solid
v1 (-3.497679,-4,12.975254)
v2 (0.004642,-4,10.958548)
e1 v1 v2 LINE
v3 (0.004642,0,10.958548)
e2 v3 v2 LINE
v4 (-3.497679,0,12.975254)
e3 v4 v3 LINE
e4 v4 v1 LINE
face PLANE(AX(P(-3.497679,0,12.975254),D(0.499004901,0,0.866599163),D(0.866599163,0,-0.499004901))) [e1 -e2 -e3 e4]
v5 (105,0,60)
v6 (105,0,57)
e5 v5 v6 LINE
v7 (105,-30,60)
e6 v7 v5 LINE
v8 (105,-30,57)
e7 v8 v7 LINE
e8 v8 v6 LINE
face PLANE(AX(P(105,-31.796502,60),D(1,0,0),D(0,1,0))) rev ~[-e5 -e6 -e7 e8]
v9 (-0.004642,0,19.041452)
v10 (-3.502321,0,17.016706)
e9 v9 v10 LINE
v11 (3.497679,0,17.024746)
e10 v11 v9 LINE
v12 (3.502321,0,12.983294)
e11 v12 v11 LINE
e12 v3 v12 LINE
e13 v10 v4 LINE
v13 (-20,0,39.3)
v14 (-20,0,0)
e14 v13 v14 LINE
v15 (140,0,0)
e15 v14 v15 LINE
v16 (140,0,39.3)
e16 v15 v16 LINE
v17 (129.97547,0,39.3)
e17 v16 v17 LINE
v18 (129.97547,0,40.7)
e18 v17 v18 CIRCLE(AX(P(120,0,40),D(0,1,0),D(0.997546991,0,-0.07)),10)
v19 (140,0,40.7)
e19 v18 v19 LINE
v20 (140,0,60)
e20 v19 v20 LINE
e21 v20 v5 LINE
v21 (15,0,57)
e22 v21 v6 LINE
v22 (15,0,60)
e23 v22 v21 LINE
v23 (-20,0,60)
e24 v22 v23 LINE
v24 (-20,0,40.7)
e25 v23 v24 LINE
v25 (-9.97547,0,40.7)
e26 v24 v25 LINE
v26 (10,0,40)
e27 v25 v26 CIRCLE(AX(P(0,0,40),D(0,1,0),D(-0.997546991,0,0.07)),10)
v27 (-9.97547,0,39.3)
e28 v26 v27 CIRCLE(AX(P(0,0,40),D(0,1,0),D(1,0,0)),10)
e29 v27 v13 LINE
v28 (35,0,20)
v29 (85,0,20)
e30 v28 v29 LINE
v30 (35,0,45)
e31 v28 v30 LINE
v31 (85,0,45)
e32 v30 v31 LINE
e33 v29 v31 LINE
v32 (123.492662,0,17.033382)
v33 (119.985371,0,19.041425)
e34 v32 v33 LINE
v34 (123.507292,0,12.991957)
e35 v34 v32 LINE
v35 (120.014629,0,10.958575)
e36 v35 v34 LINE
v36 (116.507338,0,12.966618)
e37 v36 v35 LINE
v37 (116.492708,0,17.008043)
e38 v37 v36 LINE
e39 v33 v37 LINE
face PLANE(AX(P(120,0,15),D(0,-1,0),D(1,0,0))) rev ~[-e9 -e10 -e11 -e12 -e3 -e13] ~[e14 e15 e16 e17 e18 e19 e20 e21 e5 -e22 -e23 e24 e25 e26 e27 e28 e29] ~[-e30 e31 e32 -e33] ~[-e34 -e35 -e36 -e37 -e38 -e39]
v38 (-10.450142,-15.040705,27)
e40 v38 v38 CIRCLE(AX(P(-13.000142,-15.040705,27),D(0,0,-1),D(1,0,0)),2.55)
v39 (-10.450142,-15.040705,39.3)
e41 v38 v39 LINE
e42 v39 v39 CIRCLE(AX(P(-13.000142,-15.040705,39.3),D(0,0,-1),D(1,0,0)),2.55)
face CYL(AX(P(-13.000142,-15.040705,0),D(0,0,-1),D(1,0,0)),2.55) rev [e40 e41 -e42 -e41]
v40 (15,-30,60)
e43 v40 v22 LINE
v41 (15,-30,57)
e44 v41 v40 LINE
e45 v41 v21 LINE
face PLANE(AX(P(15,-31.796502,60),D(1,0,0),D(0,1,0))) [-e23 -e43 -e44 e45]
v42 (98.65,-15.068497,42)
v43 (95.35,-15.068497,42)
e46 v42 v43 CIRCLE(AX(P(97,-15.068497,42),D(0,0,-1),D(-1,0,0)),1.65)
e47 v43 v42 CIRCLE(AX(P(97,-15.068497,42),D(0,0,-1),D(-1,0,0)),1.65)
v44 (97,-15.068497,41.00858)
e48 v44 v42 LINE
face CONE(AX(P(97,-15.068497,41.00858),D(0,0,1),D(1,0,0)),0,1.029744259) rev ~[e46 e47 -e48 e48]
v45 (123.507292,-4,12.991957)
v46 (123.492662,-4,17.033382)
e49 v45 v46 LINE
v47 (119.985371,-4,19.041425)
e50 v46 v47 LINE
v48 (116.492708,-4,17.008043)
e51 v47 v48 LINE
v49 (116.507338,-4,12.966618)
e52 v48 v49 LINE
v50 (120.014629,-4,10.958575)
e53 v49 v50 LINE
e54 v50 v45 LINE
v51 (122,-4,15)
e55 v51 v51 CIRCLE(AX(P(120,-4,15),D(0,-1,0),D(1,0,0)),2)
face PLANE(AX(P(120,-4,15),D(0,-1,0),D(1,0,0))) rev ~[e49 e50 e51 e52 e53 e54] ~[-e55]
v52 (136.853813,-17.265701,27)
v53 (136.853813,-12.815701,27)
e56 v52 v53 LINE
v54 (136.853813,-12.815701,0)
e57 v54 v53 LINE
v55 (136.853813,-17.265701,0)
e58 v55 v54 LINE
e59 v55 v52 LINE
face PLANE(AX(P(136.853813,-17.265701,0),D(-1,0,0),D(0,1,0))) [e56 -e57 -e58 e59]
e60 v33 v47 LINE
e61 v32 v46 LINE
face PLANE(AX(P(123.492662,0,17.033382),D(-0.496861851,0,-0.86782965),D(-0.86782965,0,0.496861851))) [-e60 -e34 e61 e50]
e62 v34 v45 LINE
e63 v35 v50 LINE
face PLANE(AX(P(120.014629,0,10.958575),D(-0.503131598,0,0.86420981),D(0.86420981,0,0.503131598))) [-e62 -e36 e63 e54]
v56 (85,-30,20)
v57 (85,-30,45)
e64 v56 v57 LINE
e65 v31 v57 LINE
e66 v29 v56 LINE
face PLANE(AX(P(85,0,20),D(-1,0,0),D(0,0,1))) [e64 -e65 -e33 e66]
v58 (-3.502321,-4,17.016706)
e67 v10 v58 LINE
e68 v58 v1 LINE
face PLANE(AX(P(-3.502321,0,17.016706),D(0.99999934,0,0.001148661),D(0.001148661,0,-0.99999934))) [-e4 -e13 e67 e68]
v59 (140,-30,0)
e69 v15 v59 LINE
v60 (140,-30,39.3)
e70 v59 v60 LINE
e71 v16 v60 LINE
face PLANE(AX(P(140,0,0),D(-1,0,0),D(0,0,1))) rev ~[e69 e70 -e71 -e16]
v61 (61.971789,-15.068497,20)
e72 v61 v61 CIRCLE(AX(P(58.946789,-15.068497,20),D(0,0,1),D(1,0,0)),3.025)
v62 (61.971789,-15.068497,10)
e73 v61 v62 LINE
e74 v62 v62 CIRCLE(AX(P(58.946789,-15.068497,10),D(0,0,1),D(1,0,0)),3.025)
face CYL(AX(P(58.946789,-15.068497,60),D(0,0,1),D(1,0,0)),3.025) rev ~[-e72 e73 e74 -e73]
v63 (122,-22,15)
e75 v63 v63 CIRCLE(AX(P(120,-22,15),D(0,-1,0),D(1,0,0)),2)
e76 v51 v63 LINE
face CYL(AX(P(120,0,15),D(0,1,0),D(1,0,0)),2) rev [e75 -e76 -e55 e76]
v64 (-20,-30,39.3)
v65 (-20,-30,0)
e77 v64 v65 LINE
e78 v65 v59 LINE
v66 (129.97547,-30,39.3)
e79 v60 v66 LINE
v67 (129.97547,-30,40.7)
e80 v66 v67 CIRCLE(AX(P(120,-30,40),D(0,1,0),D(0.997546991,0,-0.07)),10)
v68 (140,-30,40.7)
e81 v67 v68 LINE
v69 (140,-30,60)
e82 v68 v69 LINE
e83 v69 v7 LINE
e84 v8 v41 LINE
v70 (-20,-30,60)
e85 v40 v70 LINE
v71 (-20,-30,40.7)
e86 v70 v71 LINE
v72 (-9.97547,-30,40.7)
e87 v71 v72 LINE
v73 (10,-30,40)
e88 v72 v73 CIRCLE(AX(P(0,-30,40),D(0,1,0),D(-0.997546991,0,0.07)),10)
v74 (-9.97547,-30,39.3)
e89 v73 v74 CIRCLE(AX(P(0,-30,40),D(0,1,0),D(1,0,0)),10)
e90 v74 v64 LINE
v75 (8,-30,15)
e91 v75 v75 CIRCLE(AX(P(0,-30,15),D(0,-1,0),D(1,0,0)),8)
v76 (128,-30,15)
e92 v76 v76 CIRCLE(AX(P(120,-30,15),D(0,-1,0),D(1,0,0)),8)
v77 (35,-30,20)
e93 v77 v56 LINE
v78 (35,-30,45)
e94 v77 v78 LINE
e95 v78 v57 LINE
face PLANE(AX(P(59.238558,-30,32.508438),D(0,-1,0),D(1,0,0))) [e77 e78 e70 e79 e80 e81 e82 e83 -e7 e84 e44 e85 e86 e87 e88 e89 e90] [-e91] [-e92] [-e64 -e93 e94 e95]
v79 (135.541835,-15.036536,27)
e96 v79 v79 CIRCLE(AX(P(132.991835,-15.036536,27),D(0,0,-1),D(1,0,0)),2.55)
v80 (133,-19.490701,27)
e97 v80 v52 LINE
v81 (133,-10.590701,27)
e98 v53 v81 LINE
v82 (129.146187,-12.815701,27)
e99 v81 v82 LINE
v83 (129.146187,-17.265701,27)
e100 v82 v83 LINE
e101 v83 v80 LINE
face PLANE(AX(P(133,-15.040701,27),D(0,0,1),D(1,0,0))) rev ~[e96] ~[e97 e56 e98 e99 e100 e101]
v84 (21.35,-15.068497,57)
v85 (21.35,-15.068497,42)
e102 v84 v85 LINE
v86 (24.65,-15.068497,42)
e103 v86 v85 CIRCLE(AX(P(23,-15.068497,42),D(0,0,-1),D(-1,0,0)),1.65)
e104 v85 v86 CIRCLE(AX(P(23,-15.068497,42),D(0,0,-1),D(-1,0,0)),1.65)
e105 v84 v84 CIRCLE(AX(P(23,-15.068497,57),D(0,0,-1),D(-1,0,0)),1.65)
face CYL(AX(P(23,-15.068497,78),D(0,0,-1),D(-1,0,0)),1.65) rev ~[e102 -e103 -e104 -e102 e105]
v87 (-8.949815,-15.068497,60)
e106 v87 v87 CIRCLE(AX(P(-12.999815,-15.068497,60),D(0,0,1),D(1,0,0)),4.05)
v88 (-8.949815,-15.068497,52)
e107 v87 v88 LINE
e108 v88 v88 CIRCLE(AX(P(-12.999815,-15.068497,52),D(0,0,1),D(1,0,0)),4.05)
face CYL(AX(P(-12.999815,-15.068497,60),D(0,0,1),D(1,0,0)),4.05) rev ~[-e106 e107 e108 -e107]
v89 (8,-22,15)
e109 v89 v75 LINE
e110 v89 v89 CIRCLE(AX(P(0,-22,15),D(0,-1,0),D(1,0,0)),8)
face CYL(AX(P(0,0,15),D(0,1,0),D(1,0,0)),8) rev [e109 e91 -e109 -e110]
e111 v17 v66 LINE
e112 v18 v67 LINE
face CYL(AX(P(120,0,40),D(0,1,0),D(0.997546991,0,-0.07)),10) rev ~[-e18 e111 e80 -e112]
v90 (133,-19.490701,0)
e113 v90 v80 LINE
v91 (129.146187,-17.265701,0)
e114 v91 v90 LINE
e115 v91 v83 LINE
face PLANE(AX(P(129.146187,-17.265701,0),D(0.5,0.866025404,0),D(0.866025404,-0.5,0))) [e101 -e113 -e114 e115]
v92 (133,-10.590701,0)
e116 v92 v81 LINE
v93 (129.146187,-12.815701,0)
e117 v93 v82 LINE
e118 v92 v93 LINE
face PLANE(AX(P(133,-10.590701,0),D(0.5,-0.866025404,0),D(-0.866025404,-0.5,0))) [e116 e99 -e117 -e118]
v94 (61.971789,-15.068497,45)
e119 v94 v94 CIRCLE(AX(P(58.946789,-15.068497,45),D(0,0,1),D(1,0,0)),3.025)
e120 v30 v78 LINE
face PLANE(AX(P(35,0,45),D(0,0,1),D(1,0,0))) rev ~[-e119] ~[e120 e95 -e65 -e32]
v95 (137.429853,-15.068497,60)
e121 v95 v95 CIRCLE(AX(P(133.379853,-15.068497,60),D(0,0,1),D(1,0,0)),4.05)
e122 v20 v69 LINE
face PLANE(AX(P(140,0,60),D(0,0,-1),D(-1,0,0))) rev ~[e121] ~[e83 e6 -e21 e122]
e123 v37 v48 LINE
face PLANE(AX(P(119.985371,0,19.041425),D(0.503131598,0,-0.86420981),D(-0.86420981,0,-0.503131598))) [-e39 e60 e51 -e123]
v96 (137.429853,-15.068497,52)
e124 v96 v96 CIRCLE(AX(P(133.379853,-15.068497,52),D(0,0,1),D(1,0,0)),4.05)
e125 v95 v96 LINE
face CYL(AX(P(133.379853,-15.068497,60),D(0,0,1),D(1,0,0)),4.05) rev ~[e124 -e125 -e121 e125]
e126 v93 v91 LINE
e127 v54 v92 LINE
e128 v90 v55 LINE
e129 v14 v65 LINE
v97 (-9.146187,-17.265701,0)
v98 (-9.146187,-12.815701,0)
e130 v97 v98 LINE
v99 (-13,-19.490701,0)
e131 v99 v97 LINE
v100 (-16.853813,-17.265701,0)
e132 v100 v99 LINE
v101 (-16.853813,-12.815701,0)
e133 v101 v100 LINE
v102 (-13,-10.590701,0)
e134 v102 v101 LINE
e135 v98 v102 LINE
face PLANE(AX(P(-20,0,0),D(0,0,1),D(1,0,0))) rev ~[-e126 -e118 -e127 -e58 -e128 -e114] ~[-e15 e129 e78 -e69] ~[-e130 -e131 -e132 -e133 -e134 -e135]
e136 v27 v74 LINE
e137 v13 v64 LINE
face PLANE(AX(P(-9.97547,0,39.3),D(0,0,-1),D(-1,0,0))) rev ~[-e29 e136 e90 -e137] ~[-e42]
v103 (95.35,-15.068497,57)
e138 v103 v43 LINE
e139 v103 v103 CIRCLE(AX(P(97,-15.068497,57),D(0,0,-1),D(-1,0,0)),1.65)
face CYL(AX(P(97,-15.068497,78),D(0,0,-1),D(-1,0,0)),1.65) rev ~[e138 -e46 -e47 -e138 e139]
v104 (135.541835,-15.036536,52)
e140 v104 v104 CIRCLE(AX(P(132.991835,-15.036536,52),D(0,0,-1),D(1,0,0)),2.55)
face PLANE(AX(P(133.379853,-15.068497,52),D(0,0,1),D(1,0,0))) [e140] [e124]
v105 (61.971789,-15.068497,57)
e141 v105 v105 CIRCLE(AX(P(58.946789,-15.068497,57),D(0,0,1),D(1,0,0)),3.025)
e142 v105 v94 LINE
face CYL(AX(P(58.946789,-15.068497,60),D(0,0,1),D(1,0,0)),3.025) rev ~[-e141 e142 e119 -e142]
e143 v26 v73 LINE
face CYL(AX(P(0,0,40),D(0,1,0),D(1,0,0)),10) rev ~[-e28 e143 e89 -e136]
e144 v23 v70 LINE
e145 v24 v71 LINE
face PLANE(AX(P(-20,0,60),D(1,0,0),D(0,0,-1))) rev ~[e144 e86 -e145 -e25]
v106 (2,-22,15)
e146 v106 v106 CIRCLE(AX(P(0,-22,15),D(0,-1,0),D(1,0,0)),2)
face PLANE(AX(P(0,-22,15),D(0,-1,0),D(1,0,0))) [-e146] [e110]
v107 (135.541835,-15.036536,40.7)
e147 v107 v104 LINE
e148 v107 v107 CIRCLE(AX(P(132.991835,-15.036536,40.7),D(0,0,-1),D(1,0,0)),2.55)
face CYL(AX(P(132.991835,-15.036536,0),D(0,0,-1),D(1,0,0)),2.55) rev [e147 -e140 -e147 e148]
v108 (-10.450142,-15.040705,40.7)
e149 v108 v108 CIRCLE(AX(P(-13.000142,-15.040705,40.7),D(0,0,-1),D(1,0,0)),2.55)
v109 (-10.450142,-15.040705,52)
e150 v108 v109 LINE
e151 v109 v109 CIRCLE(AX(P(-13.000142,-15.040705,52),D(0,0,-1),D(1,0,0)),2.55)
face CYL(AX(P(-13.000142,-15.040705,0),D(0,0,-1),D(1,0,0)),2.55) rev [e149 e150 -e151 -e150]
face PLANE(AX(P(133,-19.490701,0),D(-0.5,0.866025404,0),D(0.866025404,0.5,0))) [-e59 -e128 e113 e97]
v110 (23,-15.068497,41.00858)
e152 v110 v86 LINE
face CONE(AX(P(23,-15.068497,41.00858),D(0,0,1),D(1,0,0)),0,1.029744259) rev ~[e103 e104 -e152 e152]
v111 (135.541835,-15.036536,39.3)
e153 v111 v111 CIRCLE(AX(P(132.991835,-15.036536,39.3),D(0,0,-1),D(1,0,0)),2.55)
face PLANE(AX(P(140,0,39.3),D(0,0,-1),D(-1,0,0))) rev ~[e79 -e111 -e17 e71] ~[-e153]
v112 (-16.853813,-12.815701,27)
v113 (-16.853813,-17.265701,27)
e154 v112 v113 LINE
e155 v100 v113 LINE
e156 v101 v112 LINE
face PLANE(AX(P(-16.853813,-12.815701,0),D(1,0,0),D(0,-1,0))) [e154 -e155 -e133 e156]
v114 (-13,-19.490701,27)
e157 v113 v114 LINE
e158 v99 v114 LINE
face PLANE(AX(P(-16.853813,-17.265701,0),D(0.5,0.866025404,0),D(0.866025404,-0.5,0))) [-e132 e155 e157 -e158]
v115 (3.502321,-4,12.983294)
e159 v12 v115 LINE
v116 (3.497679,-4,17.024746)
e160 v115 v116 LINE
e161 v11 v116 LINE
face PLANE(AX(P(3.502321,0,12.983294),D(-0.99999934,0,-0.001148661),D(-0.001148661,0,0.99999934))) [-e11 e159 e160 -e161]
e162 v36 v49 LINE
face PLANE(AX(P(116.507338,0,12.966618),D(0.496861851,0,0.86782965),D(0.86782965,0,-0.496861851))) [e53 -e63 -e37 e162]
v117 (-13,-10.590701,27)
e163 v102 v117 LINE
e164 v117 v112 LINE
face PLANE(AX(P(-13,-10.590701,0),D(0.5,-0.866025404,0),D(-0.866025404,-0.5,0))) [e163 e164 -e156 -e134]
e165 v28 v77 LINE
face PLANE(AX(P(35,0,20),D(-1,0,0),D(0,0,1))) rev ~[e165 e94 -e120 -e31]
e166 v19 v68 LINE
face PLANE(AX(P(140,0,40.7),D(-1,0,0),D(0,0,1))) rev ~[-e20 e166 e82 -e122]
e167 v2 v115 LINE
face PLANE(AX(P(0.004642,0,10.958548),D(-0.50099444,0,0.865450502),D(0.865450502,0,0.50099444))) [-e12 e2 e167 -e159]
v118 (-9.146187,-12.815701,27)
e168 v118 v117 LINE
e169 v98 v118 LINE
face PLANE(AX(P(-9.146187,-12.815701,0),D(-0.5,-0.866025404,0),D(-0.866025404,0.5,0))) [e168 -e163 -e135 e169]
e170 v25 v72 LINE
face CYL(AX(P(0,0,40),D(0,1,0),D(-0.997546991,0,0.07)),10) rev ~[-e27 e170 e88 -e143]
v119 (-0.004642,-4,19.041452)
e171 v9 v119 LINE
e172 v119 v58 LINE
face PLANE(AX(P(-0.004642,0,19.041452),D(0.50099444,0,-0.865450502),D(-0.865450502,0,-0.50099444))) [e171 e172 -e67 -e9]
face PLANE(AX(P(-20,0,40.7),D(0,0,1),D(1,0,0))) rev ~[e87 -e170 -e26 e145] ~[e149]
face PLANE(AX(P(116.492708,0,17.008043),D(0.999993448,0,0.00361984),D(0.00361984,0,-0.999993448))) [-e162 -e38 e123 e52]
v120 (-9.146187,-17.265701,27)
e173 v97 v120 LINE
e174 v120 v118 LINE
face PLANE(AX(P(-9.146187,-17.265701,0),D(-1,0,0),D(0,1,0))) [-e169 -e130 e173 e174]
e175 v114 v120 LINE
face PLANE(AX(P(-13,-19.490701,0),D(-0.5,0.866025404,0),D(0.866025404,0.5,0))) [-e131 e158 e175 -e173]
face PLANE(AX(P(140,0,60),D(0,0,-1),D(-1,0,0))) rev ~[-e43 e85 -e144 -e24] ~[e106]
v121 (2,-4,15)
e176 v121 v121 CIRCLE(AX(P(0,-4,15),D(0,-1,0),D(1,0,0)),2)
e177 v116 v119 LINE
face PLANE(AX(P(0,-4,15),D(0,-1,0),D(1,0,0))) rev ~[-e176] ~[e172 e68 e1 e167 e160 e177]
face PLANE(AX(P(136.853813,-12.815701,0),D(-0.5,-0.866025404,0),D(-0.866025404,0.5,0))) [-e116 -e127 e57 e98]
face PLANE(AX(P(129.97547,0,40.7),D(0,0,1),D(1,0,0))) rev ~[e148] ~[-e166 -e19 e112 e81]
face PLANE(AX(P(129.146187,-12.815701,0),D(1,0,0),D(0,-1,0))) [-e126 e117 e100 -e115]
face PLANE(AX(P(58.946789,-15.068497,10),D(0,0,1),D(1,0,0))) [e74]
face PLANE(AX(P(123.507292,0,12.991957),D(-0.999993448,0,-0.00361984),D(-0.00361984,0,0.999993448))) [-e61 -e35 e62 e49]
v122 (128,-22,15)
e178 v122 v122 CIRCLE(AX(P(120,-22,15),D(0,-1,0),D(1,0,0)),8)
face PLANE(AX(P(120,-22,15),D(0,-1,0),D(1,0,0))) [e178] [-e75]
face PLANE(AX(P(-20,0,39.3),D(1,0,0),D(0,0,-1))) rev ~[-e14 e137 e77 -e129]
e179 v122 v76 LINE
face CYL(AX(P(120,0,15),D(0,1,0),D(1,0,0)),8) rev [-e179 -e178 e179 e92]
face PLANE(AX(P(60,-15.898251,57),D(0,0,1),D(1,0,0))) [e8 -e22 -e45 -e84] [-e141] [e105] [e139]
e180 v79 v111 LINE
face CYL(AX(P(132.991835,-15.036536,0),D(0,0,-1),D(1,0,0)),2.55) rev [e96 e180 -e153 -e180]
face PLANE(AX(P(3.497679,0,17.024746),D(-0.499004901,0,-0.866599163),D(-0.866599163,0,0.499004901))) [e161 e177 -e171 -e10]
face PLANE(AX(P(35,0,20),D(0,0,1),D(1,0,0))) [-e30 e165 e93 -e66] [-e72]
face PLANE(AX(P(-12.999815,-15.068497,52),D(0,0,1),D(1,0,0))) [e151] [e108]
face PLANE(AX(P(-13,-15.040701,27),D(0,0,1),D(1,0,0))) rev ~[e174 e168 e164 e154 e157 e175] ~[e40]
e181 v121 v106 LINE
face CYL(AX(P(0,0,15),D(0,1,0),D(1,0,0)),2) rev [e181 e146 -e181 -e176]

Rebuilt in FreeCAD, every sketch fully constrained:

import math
import FreeCAD as App
import Part
import Sketcher
from FreeCAD import Vector
Q = App.Units.Quantity

doc = App.newDocument("Part")
params = doc.addObject("Spreadsheet::Sheet", "Params")
for row, (alias, value) in enumerate([
    ("sketch1_diameter", "16 mm"),
    ("sketch1_radius", "10 mm"),
    ("sketch1_width", "160 mm"),
    ("sketch1_width2", "50 mm"),
    ("sketch1_height", "25 mm"),
    ("pad1_length", "30 mm"),
    ("sketch2_height", "4.45 mm"),
    ("pocket1_length", "27 mm"),
    ("sketch3_diameter", "5.1 mm"),
    ("sketch4_diameter", "8.1 mm"),
    ("sketch4_diameter2", "5.1 mm"),
    ("pocket3_length", "10 mm"),
    ("sketch5_diameter", "8.1 mm"),
    ("pocket4_length", "8 mm"),
    ("sketch6_diameter", "6.05 mm"),
    ("pocket5_length", "50 mm"),
    ("sketch7_diameter", "6.05 mm"),
    ("sketch7_width", "90 mm"),
    ("pocket6_length", "3 mm"),
    ("sketch8_diameter", "3.3 mm"),
    ("hole_diameter", "3.3 mm"),
    ("hole_depth", "18 mm"),
    ("sketch9_diameter", "4 mm"),
    ("pocket7_length", "4 mm"),
    ("sketch10_diameter", "16 mm"),
    ("pad2_length", "22 mm"),
    ("sketch11_diameter", "4 mm"),
    ("pad3_length", "22 mm"),
    ("sketch12_diameter", "4 mm"),
    ("pocket8_length", "4 mm"),
], start=1):
    params.set(f"A{row}", alias)
    params.set(f"B{row}", "=" + value)
    params.setAlias(f"B{row}", alias)

body = doc.addObject("PartDesign::Body", "Body")

sketch1 = doc.addObject("Sketcher::SketchObject", "Sketch")
body.addObject(sketch1)
sketch1.AttachmentSupport = (doc.XZ_Plane, [""])
sketch1.MapMode = "FlatFace"
sketch1.addGeometry([
    Part.LineSegment(Vector(-20, 39.3, 0), Vector(-20, 0, 0)),
    Part.LineSegment(Vector(-20, 0, 0), Vector(140, 0, 0)),
    Part.LineSegment(Vector(140, 0, 0), Vector(140, 39.3, 0)),
    Part.LineSegment(Vector(140, 39.3, 0), Vector(130, 39.3, 0)),
    Part.ArcOfCircle(Part.Circle(Vector(120, 40, 0), Vector(0, 0, 1), 10), math.radians(4), math.radians(356)),
    Part.LineSegment(Vector(130, 40.7, 0), Vector(140, 40.7, 0)),
    Part.LineSegment(Vector(140, 40.7, 0), Vector(140, 60, 0)),
    Part.LineSegment(Vector(140, 60, 0), Vector(-20, 60, 0)),
    Part.LineSegment(Vector(-20, 60, 0), Vector(-20, 40.7, 0)),
    Part.LineSegment(Vector(-20, 40.7, 0), Vector(-10, 40.7, 0)),
    Part.ArcOfCircle(Part.Circle(Vector(0, 40, 0), Vector(0, 0, 1), 10), math.radians(0), math.radians(176)),
    Part.ArcOfCircle(Part.Circle(Vector(0, 40, 0), Vector(0, 0, 1), 10), math.radians(-176), math.radians(0)),
    Part.LineSegment(Vector(-10, 39.3, 0), Vector(-20, 39.3, 0)),
    Part.Circle(Vector(0, 15, 0), Vector(0, 0, 1), 8),
    Part.Circle(Vector(120, 15, 0), Vector(0, 0, 1), 8),
    Part.LineSegment(Vector(85, 20, 0), Vector(35, 20, 0)),
    Part.LineSegment(Vector(35, 20, 0), Vector(35, 45, 0)),
    Part.LineSegment(Vector(35, 45, 0), Vector(85, 45, 0)),
    Part.LineSegment(Vector(85, 45, 0), Vector(85, 20, 0)),
], False)
sketch1.addConstraint([
    Sketcher.Constraint("Coincident", 0, 2, 1, 1),
    Sketcher.Constraint("Coincident", 1, 2, 2, 1),
    Sketcher.Constraint("Coincident", 2, 2, 3, 1),
    Sketcher.Constraint("Coincident", 3, 2, 4, 2),
    Sketcher.Constraint("Coincident", 4, 1, 5, 1),
    Sketcher.Constraint("Coincident", 5, 2, 6, 1),
    Sketcher.Constraint("Coincident", 6, 2, 7, 1),
    Sketcher.Constraint("Coincident", 7, 2, 8, 1),
    Sketcher.Constraint("Coincident", 8, 2, 9, 1),
    Sketcher.Constraint("Coincident", 9, 2, 10, 2),
    Sketcher.Constraint("Tangent", 10, 1, 11, 2),
    Sketcher.Constraint("Coincident", 11, 1, 12, 1),
    Sketcher.Constraint("Coincident", 12, 2, 0, 1),
    Sketcher.Constraint("Coincident", 15, 2, 16, 1),
    Sketcher.Constraint("Coincident", 16, 2, 17, 1),
    Sketcher.Constraint("Coincident", 17, 2, 18, 1),
    Sketcher.Constraint("Coincident", 18, 2, 15, 1),
    Sketcher.Constraint("Vertical", 0),
    Sketcher.Constraint("Horizontal", 1),
    Sketcher.Constraint("Vertical", 2),
    Sketcher.Constraint("Horizontal", 3),
    Sketcher.Constraint("Horizontal", 5),
    Sketcher.Constraint("Vertical", 6),
    Sketcher.Constraint("Horizontal", 7),
    Sketcher.Constraint("Vertical", 8),
    Sketcher.Constraint("Horizontal", 9),
    Sketcher.Constraint("Horizontal", 12),
    Sketcher.Constraint("Horizontal", 15),
    Sketcher.Constraint("Vertical", 16),
    Sketcher.Constraint("Horizontal", 17),
    Sketcher.Constraint("Vertical", 18),
    Sketcher.Constraint("Equal", 4, 10),
    Sketcher.Constraint("Equal", 10, 11),
    Sketcher.Constraint("Equal", 13, 14),
    Sketcher.Constraint("PointOnObject", 10, 3, -2),
    Sketcher.Constraint("PointOnObject", 13, 3, -2),
    Sketcher.Constraint("PointOnObject", 0, 2, -1),
    Sketcher.Constraint("Horizontal", 4, 3, 10, 3),
    Sketcher.Constraint("Horizontal", 13, 3, 14, 3),
    Sketcher.Constraint("Horizontal", 5, 2, 8, 2),
    Sketcher.Constraint("Horizontal", 11, 3, 10, 1),
    Sketcher.Constraint("Horizontal", 3, 2, 11, 1),
    Sketcher.Constraint("Vertical", 4, 3, 14, 3),
    Sketcher.Constraint("Vertical", 3, 2, 4, 1),
    Sketcher.Constraint("Vertical", 2, 2, 5, 2),
    Sketcher.Constraint("Vertical", 0, 2, 7, 2),
    Sketcher.Constraint("Equal", 5, 9),
    Sketcher.Constraint("Diameter", 13, Q("16 mm")),
    Sketcher.Constraint("Radius", 4, Q("10 mm")),
    Sketcher.Constraint("DistanceX", 1, 1, 1, 2, Q("160 mm")),
    Sketcher.Constraint("DistanceX", 15, 2, 15, 1, Q("50 mm")),
    Sketcher.Constraint("DistanceY", 16, 1, 16, 2, Q("25 mm")),
    Sketcher.Constraint("DistanceY", 0, 2, 0, 1, Q("39.3 mm")),
    Sketcher.Constraint("DistanceY", 6, 1, 6, 2, Q("19.3 mm")),
    Sketcher.Constraint("DistanceX", -1, 1, 4, 3, Q("120 mm")),
    Sketcher.Constraint("DistanceY", -1, 1, 4, 3, Q("40 mm")),
    Sketcher.Constraint("DistanceY", -1, 1, 13, 3, Q("15 mm")),
    Sketcher.Constraint("DistanceX", -1, 1, 15, 2, Q("35 mm")),
    Sketcher.Constraint("DistanceY", -1, 1, 15, 2, Q("20 mm")),
])
sketch1.setExpression("Constraints[47]", "Params.sketch1_diameter")
sketch1.setExpression("Constraints[48]", "Params.sketch1_radius")
sketch1.setExpression("Constraints[49]", "Params.sketch1_width")
sketch1.setExpression("Constraints[50]", "Params.sketch1_width2")
sketch1.setExpression("Constraints[51]", "Params.sketch1_height")
pad1 = doc.addObject("PartDesign::Pad", "Pad")
body.addObject(pad1)
pad1.Profile = sketch1
pad1.setExpression("Length", "Params.pad1_length")

sketch2 = doc.addObject("Sketcher::SketchObject", "Sketch001")
body.addObject(sketch2)
sketch2.AttachmentSupport = (doc.XY_Plane, [""])
sketch2.MapMode = "FlatFace"
sketch2.addGeometry([
    Part.LineSegment(Vector(129.1, -12.8, 0), Vector(129.1, -17.3, 0)),
    Part.LineSegment(Vector(129.1, -17.3, 0), Vector(133, -19.5, 0)),
    Part.LineSegment(Vector(133, -19.5, 0), Vector(136.9, -17.3, 0)),
    Part.LineSegment(Vector(136.9, -17.3, 0), Vector(136.9, -12.8, 0)),
    Part.LineSegment(Vector(136.9, -12.8, 0), Vector(133, -10.6, 0)),
    Part.LineSegment(Vector(133, -10.6, 0), Vector(129.1, -12.8, 0)),
    Part.LineSegment(Vector(-16.9, -12.8, 0), Vector(-16.9, -17.3, 0)),
    Part.LineSegment(Vector(-16.9, -17.3, 0), Vector(-13, -19.5, 0)),
    Part.LineSegment(Vector(-13, -19.5, 0), Vector(-9.1, -17.3, 0)),
    Part.LineSegment(Vector(-9.1, -17.3, 0), Vector(-9.1, -12.8, 0)),
    Part.LineSegment(Vector(-9.1, -12.8, 0), Vector(-13, -10.6, 0)),
    Part.LineSegment(Vector(-13, -10.6, 0), Vector(-16.9, -12.8, 0)),
], False)
sketch2.addConstraint([
    Sketcher.Constraint("Coincident", 0, 2, 1, 1),
    Sketcher.Constraint("Coincident", 1, 2, 2, 1),
    Sketcher.Constraint("Coincident", 2, 2, 3, 1),
    Sketcher.Constraint("Coincident", 3, 2, 4, 1),
    Sketcher.Constraint("Coincident", 4, 2, 5, 1),
    Sketcher.Constraint("Coincident", 5, 2, 0, 1),
    Sketcher.Constraint("Coincident", 6, 2, 7, 1),
    Sketcher.Constraint("Coincident", 7, 2, 8, 1),
    Sketcher.Constraint("Coincident", 8, 2, 9, 1),
    Sketcher.Constraint("Coincident", 9, 2, 10, 1),
    Sketcher.Constraint("Coincident", 10, 2, 11, 1),
    Sketcher.Constraint("Coincident", 11, 2, 6, 1),
    Sketcher.Constraint("Vertical", 0),
    Sketcher.Constraint("Vertical", 3),
    Sketcher.Constraint("Vertical", 6),
    Sketcher.Constraint("Vertical", 9),
    Sketcher.Constraint("Parallel", 1, 4),
    Sketcher.Constraint("Parallel", 2, 5),
    Sketcher.Constraint("Parallel", 4, 7),
    Sketcher.Constraint("Parallel", 5, 8),
    Sketcher.Constraint("Parallel", 7, 10),
    Sketcher.Constraint("Parallel", 8, 11),
    Sketcher.Constraint("Horizontal", 0, 2, 2, 2),
    Sketcher.Constraint("Horizontal", 3, 2, 5, 2),
    Sketcher.Constraint("Horizontal", 2, 2, 6, 2),
    Sketcher.Constraint("Horizontal", 1, 2, 7, 2),
    Sketcher.Constraint("Horizontal", 6, 2, 8, 2),
    Sketcher.Constraint("Horizontal", 5, 2, 9, 2),
    Sketcher.Constraint("Horizontal", 4, 2, 10, 2),
    Sketcher.Constraint("Vertical", 1, 2, 4, 2),
    Sketcher.Constraint("Angle", 1, Q("-30 deg")),
    Sketcher.Constraint("DistanceX", -1, 1, 1, 2, Q("133 mm")),
    Sketcher.Constraint("DistanceX", 7, 2, -1, 1, Q("13 mm")),
    Sketcher.Constraint("DistanceY", 0, 2, 0, 1, Q("4.45 mm")),
    Sketcher.Constraint("DistanceY", 1, 2, 4, 2, Q("8.9 mm")),
    Sketcher.Constraint("DistanceY", 0, 2, -1, 1, Q("17.265701 mm")),
])
sketch2.setExpression("Constraints[33]", "Params.sketch2_height")
pocket1 = doc.addObject("PartDesign::Pocket", "Pocket")
body.addObject(pocket1)
pocket1.Profile = sketch2
pocket1.setExpression("Length", "Params.pocket1_length")
pocket1.Reversed = True

sketch3 = doc.addObject("Sketcher::SketchObject", "Sketch002")
body.addObject(sketch3)
sketch3.AttachmentSupport = (doc.XY_Plane, [""])
sketch3.MapMode = "FlatFace"
sketch3.addGeometry([
    Part.Circle(Vector(133, -15, 0), Vector(0, 0, 1), 2.5),
    Part.Circle(Vector(-13, -15, 0), Vector(0, 0, 1), 2.5),
], False)
sketch3.addConstraint([
    Sketcher.Constraint("Equal", 0, 1),
    Sketcher.Constraint("Diameter", 0, Q("5.1 mm")),
    Sketcher.Constraint("DistanceX", 1, 3, -1, 1, Q("13.000142 mm")),
    Sketcher.Constraint("DistanceY", 1, 3, 0, 3, Q("0.004169 mm")),
    Sketcher.Constraint("DistanceX", -1, 1, 0, 3, Q("132.991835 mm")),
    Sketcher.Constraint("DistanceY", 0, 3, -1, 1, Q("15.036536 mm")),
])
sketch3.setExpression("Constraints[1]", "Params.sketch3_diameter")
pocket2 = doc.addObject("PartDesign::Pocket", "Pocket001")
body.addObject(pocket2)
pocket2.Profile = sketch3
pocket2.Type = "ThroughAll"
pocket2.Reversed = True

sketch4 = doc.addObject("Sketcher::SketchObject", "Sketch003")
body.addObject(sketch4)
sketch4.AttachmentSupport = (doc.XY_Plane, [""])
sketch4.MapMode = "FlatFace"
sketch4.addGeometry([
    Part.Circle(Vector(-13, -15, 0), Vector(0, 0, 1), 4),
    Part.Circle(Vector(-13, -15, 0), Vector(0, 0, 1), 2.5),
    Part.Circle(Vector(133, -15, 0), Vector(0, 0, 1), 4),
    Part.Circle(Vector(133, -15, 0), Vector(0, 0, 1), 2.5),
], False)
sketch4.addConstraint([
    Sketcher.Constraint("Coincident", 1, 3, 0, 3),
    Sketcher.Constraint("Coincident", 3, 3, 2, 3),
    Sketcher.Constraint("Equal", 0, 2),
    Sketcher.Constraint("Equal", 1, 3),
    Sketcher.Constraint("Diameter", 0, Q("8.1 mm")),
    Sketcher.Constraint("Diameter", 1, Q("5.1 mm")),
    Sketcher.Constraint("DistanceX", 0, 3, -1, 1, Q("13.000142 mm")),
    Sketcher.Constraint("DistanceY", 0, 3, 2, 3, Q("0.004169 mm")),
    Sketcher.Constraint("DistanceY", 0, 3, -1, 1, Q("15.040705 mm")),
    Sketcher.Constraint("DistanceX", -1, 1, 2, 3, Q("132.991835 mm")),
])
sketch4.setExpression("Constraints[4]", "Params.sketch4_diameter")
sketch4.setExpression("Constraints[5]", "Params.sketch4_diameter2")
pocket3 = doc.addObject("PartDesign::Pocket", "Pocket002")
body.addObject(pocket3)
pocket3.Profile = sketch4
pocket3.setExpression("Length", "Params.pocket3_length")

sketch5 = doc.addObject("Sketcher::SketchObject", "Sketch004")
body.addObject(sketch5)
sketch5.AttachmentSupport = (doc.XY_Plane, [""])
sketch5.MapMode = "FlatFace"
sketch5.AttachmentOffset = App.Placement(Vector(0, 0, 60), App.Rotation())
sketch5.addGeometry([
    Part.Circle(Vector(-13, -15.1, 0), Vector(0, 0, 1), 4),
    Part.Circle(Vector(133.4, -15.1, 0), Vector(0, 0, 1), 4),
], False)
sketch5.addConstraint([
    Sketcher.Constraint("Equal", 0, 1),
    Sketcher.Constraint("Horizontal", 0, 3, 1, 3),
    Sketcher.Constraint("Diameter", 0, Q("8.1 mm")),
    Sketcher.Constraint("DistanceX", 0, 3, 1, 3, Q("146.379669 mm")),
    Sketcher.Constraint("DistanceX", 0, 3, -1, 1, Q("12.999815 mm")),
    Sketcher.Constraint("DistanceY", 0, 3, -1, 1, Q("15.068497 mm")),
])
sketch5.setExpression("Constraints[2]", "Params.sketch5_diameter")
pocket4 = doc.addObject("PartDesign::Pocket", "Pocket003")
body.addObject(pocket4)
pocket4.Profile = sketch5
pocket4.setExpression("Length", "Params.pocket4_length")

sketch6 = doc.addObject("Sketcher::SketchObject", "Sketch005")
body.addObject(sketch6)
sketch6.AttachmentSupport = (doc.XY_Plane, [""])
sketch6.MapMode = "FlatFace"
sketch6.AttachmentOffset = App.Placement(Vector(0, 0, 60), App.Rotation())
sketch6.addGeometry(Part.Circle(Vector(58.9, -15.1, 0), Vector(0, 0, 1), 3), False)
sketch6.addConstraint([
    Sketcher.Constraint("Diameter", 0, Q("6.05 mm")),
    Sketcher.Constraint("DistanceX", -1, 1, 0, 3, Q("58.946789 mm")),
    Sketcher.Constraint("DistanceY", 0, 3, -1, 1, Q("15.068497 mm")),
])
sketch6.setExpression("Constraints[0]", "Params.sketch6_diameter")
pocket5 = doc.addObject("PartDesign::Pocket", "Pocket004")
body.addObject(pocket5)
pocket5.Profile = sketch6
pocket5.setExpression("Length", "Params.pocket5_length")

sketch7 = doc.addObject("Sketcher::SketchObject", "Sketch006")
body.addObject(sketch7)
sketch7.AttachmentSupport = (doc.XY_Plane, [""])
sketch7.MapMode = "FlatFace"
sketch7.AttachmentOffset = App.Placement(Vector(0, 0, 60), App.Rotation())
sketch7.addGeometry([
    Part.LineSegment(Vector(15, 0, 0), Vector(15, -31.8, 0)),
    Part.LineSegment(Vector(15, -31.8, 0), Vector(105, -31.8, 0)),
    Part.LineSegment(Vector(105, -31.8, 0), Vector(105, 0, 0)),
    Part.LineSegment(Vector(105, 0, 0), Vector(15, 0, 0)),
    Part.Circle(Vector(58.9, -15.1, 0), Vector(0, 0, 1), 3),
], False)
sketch7.addConstraint([
    Sketcher.Constraint("Coincident", 0, 2, 1, 1),
    Sketcher.Constraint("Coincident", 1, 2, 2, 1),
    Sketcher.Constraint("Coincident", 2, 2, 3, 1),
    Sketcher.Constraint("Coincident", 3, 2, 0, 1),
    Sketcher.Constraint("Vertical", 0),
    Sketcher.Constraint("Horizontal", 1),
    Sketcher.Constraint("Vertical", 2),
    Sketcher.Constraint("Horizontal", 3),
    Sketcher.Constraint("PointOnObject", 2, 2, -1),
    Sketcher.Constraint("Diameter", 4, Q("6.05 mm")),
    Sketcher.Constraint("DistanceX", 1, 1, 1, 2, Q("90 mm")),
    Sketcher.Constraint("DistanceX", -1, 1, 0, 2, Q("15 mm")),
    Sketcher.Constraint("DistanceY", 0, 2, 0, 1, Q("31.796502 mm")),
    Sketcher.Constraint("DistanceX", -1, 1, 4, 3, Q("58.946789 mm")),
    Sketcher.Constraint("DistanceY", 4, 3, -1, 1, Q("15.068497 mm")),
])
sketch7.setExpression("Constraints[9]", "Params.sketch7_diameter")
sketch7.setExpression("Constraints[10]", "Params.sketch7_width")
pocket6 = doc.addObject("PartDesign::Pocket", "Pocket005")
body.addObject(pocket6)
pocket6.Profile = sketch7
pocket6.setExpression("Length", "Params.pocket6_length")

sketch8 = doc.addObject("Sketcher::SketchObject", "Sketch007")
body.addObject(sketch8)
sketch8.AttachmentSupport = (doc.XY_Plane, [""])
sketch8.MapMode = "FlatFace"
sketch8.AttachmentOffset = App.Placement(Vector(0, 0, 60), App.Rotation())
sketch8.addGeometry([
    Part.Circle(Vector(23, -15.1, 0), Vector(0, 0, 1), 1.6),
    Part.Circle(Vector(97, -15.1, 0), Vector(0, 0, 1), 1.6),
], False)
sketch8.addConstraint([
    Sketcher.Constraint("Equal", 0, 1),
    Sketcher.Constraint("Horizontal", 0, 3, 1, 3),
    Sketcher.Constraint("Diameter", 0, Q("3.3 mm")),
    Sketcher.Constraint("DistanceX", -1, 1, 0, 3, Q("23 mm")),
    Sketcher.Constraint("DistanceX", -1, 1, 1, 3, Q("97 mm")),
    Sketcher.Constraint("DistanceY", 0, 3, -1, 1, Q("15.068497 mm")),
])
sketch8.setExpression("Constraints[2]", "Params.sketch8_diameter")
doc.recompute()
hole = doc.addObject("PartDesign::Hole", "Hole")
body.addObject(hole)
hole.Profile = sketch8
hole.ThreadType = "None"
hole.setExpression("Diameter", "Params.hole_diameter")
hole.DepthType = "Dimension"
hole.setExpression("Depth", "Params.hole_depth")
hole.DrillPoint = "Angled"
hole.DrillPointAngle = 118

sketch9 = doc.addObject("Sketcher::SketchObject", "Sketch008")
body.addObject(sketch9)
sketch9.AttachmentSupport = (doc.XZ_Plane, [""])
sketch9.MapMode = "FlatFace"
sketch9.addGeometry([
    Part.LineSegment(Vector(0, 19, 0), Vector(-3.5, 17, 0)),
    Part.LineSegment(Vector(-3.5, 17, 0), Vector(-3.5, 13, 0)),
    Part.LineSegment(Vector(-3.5, 13, 0), Vector(0, 11, 0)),
    Part.LineSegment(Vector(0, 11, 0), Vector(3.5, 13, 0)),
    Part.LineSegment(Vector(3.5, 13, 0), Vector(3.5, 17, 0)),
    Part.LineSegment(Vector(3.5, 17, 0), Vector(0, 19, 0)),
    Part.Circle(Vector(0, 15, 0), Vector(0, 0, 1), 2),
    Part.LineSegment(Vector(123.5, 17, 0), Vector(120, 19, 0)),
    Part.LineSegment(Vector(120, 19, 0), Vector(116.5, 17, 0)),
    Part.LineSegment(Vector(116.5, 17, 0), Vector(116.5, 13, 0)),
    Part.LineSegment(Vector(116.5, 13, 0), Vector(120, 11, 0)),
    Part.LineSegment(Vector(120, 11, 0), Vector(123.5, 13, 0)),
    Part.LineSegment(Vector(123.5, 13, 0), Vector(123.5, 17, 0)),
    Part.Circle(Vector(120, 15, 0), Vector(0, 0, 1), 2),
], False)
sketch9.addConstraint([
    Sketcher.Constraint("Coincident", 0, 2, 1, 1),
    Sketcher.Constraint("Coincident", 1, 2, 2, 1),
    Sketcher.Constraint("Coincident", 2, 2, 3, 1),
    Sketcher.Constraint("Coincident", 3, 2, 4, 1),
    Sketcher.Constraint("Coincident", 4, 2, 5, 1),
    Sketcher.Constraint("Coincident", 5, 2, 0, 1),
    Sketcher.Constraint("Coincident", 7, 2, 8, 1),
    Sketcher.Constraint("Coincident", 8, 2, 9, 1),
    Sketcher.Constraint("Coincident", 9, 2, 10, 1),
    Sketcher.Constraint("Coincident", 10, 2, 11, 1),
    Sketcher.Constraint("Coincident", 11, 2, 12, 1),
    Sketcher.Constraint("Coincident", 12, 2, 7, 1),
    Sketcher.Constraint("Equal", 6, 13),
    Sketcher.Constraint("PointOnObject", 6, 3, -2),
    Sketcher.Constraint("Parallel", 0, 3),
    Sketcher.Constraint("Parallel", 1, 4),
    Sketcher.Constraint("Parallel", 2, 5),
    Sketcher.Constraint("Parallel", 7, 10),
    Sketcher.Constraint("Parallel", 8, 11),
    Sketcher.Constraint("Parallel", 9, 12),
    Sketcher.Constraint("Horizontal", 6, 3, 13, 3),
    Sketcher.Constraint("Equal", 0, 1),
    Sketcher.Constraint("Equal", 1, 2),
    Sketcher.Constraint("Equal", 2, 3),
    Sketcher.Constraint("Equal", 7, 8),
    Sketcher.Constraint("Equal", 8, 9),
    Sketcher.Constraint("Equal", 9, 10),
    Sketcher.Constraint("Diameter", 6, Q("4 mm")),
    Sketcher.Constraint("DistanceY", -1, 1, 6, 3, Q("15 mm")),
    Sketcher.Constraint("DistanceX", -1, 1, 13, 3, Q("120 mm")),
    Sketcher.Constraint("DistanceX", 1, 2, 3, 2, Q("7 mm")),
    Sketcher.Constraint("DistanceY", 2, 2, 4, 2, Q("6.066198 mm")),
    Sketcher.Constraint("Distance", 7, Q("4.041452 mm")),
    Sketcher.Constraint("DistanceX", 0, 2, -1, 1, Q("3.502321 mm")),
    Sketcher.Constraint("DistanceX", 1, 2, -1, 1, Q("3.497679 mm")),
    Sketcher.Constraint("DistanceY", -1, 1, 2, 2, Q("10.958548 mm")),
    Sketcher.Constraint("DistanceY", -1, 1, 5, 2, Q("19.041452 mm")),
    Sketcher.Constraint("DistanceX", -1, 1, 7, 2, Q("119.985371 mm")),
    Sketcher.Constraint("DistanceX", -1, 1, 8, 2, Q("116.492708 mm")),
    Sketcher.Constraint("DistanceX", -1, 1, 10, 2, Q("120.014629 mm")),
    Sketcher.Constraint("DistanceY", 4, 2, 7, 2, Q("2.016679 mm")),
    Sketcher.Constraint("DistanceX", 8, 2, 9, 2, Q("0.014629 mm")),
])
sketch9.setExpression("Constraints[27]", "Params.sketch9_diameter")
pocket7 = doc.addObject("PartDesign::Pocket", "Pocket006")
body.addObject(pocket7)
pocket7.Profile = sketch9
pocket7.setExpression("Length", "Params.pocket7_length")
pocket7.Reversed = True

sketch10 = doc.addObject("Sketcher::SketchObject", "Sketch009")
body.addObject(sketch10)
sketch10.AttachmentSupport = (doc.XZ_Plane, [""])
sketch10.MapMode = "FlatFace"
sketch10.addGeometry([
    Part.Circle(Vector(120, 15, 0), Vector(0, 0, 1), 8),
    Part.LineSegment(Vector(116.5, 13, 0), Vector(116.5, 17, 0)),
    Part.LineSegment(Vector(116.5, 17, 0), Vector(120, 19, 0)),
    Part.LineSegment(Vector(120, 19, 0), Vector(123.5, 17, 0)),
    Part.LineSegment(Vector(123.5, 17, 0), Vector(123.5, 13, 0)),
    Part.LineSegment(Vector(123.5, 13, 0), Vector(120, 11, 0)),
    Part.LineSegment(Vector(120, 11, 0), Vector(116.5, 13, 0)),
    Part.Circle(Vector(0, 15, 0), Vector(0, 0, 1), 8),
    Part.LineSegment(Vector(0, 11, 0), Vector(-3.5, 13, 0)),
    Part.LineSegment(Vector(-3.5, 13, 0), Vector(-3.5, 17, 0)),
    Part.LineSegment(Vector(-3.5, 17, 0), Vector(0, 19, 0)),
    Part.LineSegment(Vector(0, 19, 0), Vector(3.5, 17, 0)),
    Part.LineSegment(Vector(3.5, 17, 0), Vector(3.5, 13, 0)),
    Part.LineSegment(Vector(3.5, 13, 0), Vector(0, 11, 0)),
], False)
sketch10.addConstraint([
    Sketcher.Constraint("Coincident", 1, 2, 2, 1),
    Sketcher.Constraint("Coincident", 2, 2, 3, 1),
    Sketcher.Constraint("Coincident", 3, 2, 4, 1),
    Sketcher.Constraint("Coincident", 4, 2, 5, 1),
    Sketcher.Constraint("Coincident", 5, 2, 6, 1),
    Sketcher.Constraint("Coincident", 6, 2, 1, 1),
    Sketcher.Constraint("Coincident", 8, 2, 9, 1),
    Sketcher.Constraint("Coincident", 9, 2, 10, 1),
    Sketcher.Constraint("Coincident", 10, 2, 11, 1),
    Sketcher.Constraint("Coincident", 11, 2, 12, 1),
    Sketcher.Constraint("Coincident", 12, 2, 13, 1),
    Sketcher.Constraint("Coincident", 13, 2, 8, 1),
    Sketcher.Constraint("Equal", 0, 7),
    Sketcher.Constraint("PointOnObject", 7, 3, -2),
    Sketcher.Constraint("Parallel", 1, 4),
    Sketcher.Constraint("Parallel", 2, 5),
    Sketcher.Constraint("Parallel", 3, 6),
    Sketcher.Constraint("Parallel", 8, 11),
    Sketcher.Constraint("Parallel", 9, 12),
    Sketcher.Constraint("Parallel", 10, 13),
    Sketcher.Constraint("Horizontal", 0, 3, 7, 3),
    Sketcher.Constraint("Equal", 1, 2),
    Sketcher.Constraint("Equal", 2, 3),
    Sketcher.Constraint("Equal", 3, 4),
    Sketcher.Constraint("Equal", 8, 9),
    Sketcher.Constraint("Equal", 9, 10),
    Sketcher.Constraint("Equal", 10, 11),
    Sketcher.Constraint("Diameter", 0, Q("16 mm")),
    Sketcher.Constraint("DistanceX", -1, 1, 0, 3, Q("120 mm")),
    Sketcher.Constraint("DistanceY", -1, 1, 0, 3, Q("15 mm")),
    Sketcher.Constraint("DistanceX", 9, 2, 11, 2, Q("7 mm")),
    Sketcher.Constraint("DistanceY", 8, 2, 10, 2, Q("6.066198 mm")),
    Sketcher.Constraint("Distance", 1, Q("4.041452 mm")),
    Sketcher.Constraint("DistanceX", -1, 1, 1, 2, Q("116.492708 mm")),
    Sketcher.Constraint("DistanceX", -1, 1, 2, 2, Q("119.985371 mm")),
    Sketcher.Constraint("DistanceX", -1, 1, 4, 2, Q("123.507292 mm")),
    Sketcher.Constraint("DistanceX", 8, 2, -1, 1, Q("3.497679 mm")),
    Sketcher.Constraint("DistanceX", 9, 2, -1, 1, Q("3.502321 mm")),
    Sketcher.Constraint("DistanceY", -1, 1, 10, 2, Q("19.041452 mm")),
    Sketcher.Constraint("DistanceY", -1, 1, 13, 2, Q("10.958548 mm")),
    Sketcher.Constraint("DistanceX", 2, 2, 3, 2, Q("3.507292 mm")),
    Sketcher.Constraint("DistanceY", 8, 2, 1, 2, Q("4.03279 mm")),
])
sketch10.setExpression("Constraints[27]", "Params.sketch10_diameter")
pad2 = doc.addObject("PartDesign::Pad", "Pad001")
body.addObject(pad2)
pad2.Profile = sketch10
pad2.setExpression("Length", "Params.pad2_length")

sketch11 = doc.addObject("Sketcher::SketchObject", "Sketch010")
body.addObject(sketch11)
sketch11.AttachmentSupport = (doc.XZ_Plane, [""])
sketch11.MapMode = "FlatFace"
sketch11.addGeometry([
    Part.LineSegment(Vector(123.5, 17, 0), Vector(120, 19, 0)),
    Part.LineSegment(Vector(120, 19, 0), Vector(116.5, 17, 0)),
    Part.LineSegment(Vector(116.5, 17, 0), Vector(116.5, 13, 0)),
    Part.LineSegment(Vector(116.5, 13, 0), Vector(120, 11, 0)),
    Part.LineSegment(Vector(120, 11, 0), Vector(123.5, 13, 0)),
    Part.LineSegment(Vector(123.5, 13, 0), Vector(123.5, 17, 0)),
    Part.Circle(Vector(120, 15, 0), Vector(0, 0, 1), 2),
    Part.LineSegment(Vector(0, 19, 0), Vector(-3.5, 17, 0)),
    Part.LineSegment(Vector(-3.5, 17, 0), Vector(-3.5, 13, 0)),
    Part.LineSegment(Vector(-3.5, 13, 0), Vector(0, 11, 0)),
    Part.LineSegment(Vector(0, 11, 0), Vector(3.5, 13, 0)),
    Part.LineSegment(Vector(3.5, 13, 0), Vector(3.5, 17, 0)),
    Part.LineSegment(Vector(3.5, 17, 0), Vector(0, 19, 0)),
    Part.Circle(Vector(0, 15, 0), Vector(0, 0, 1), 2),
], False)
sketch11.addConstraint([
    Sketcher.Constraint("Coincident", 0, 2, 1, 1),
    Sketcher.Constraint("Coincident", 1, 2, 2, 1),
    Sketcher.Constraint("Coincident", 2, 2, 3, 1),
    Sketcher.Constraint("Coincident", 3, 2, 4, 1),
    Sketcher.Constraint("Coincident", 4, 2, 5, 1),
    Sketcher.Constraint("Coincident", 5, 2, 0, 1),
    Sketcher.Constraint("Coincident", 7, 2, 8, 1),
    Sketcher.Constraint("Coincident", 8, 2, 9, 1),
    Sketcher.Constraint("Coincident", 9, 2, 10, 1),
    Sketcher.Constraint("Coincident", 10, 2, 11, 1),
    Sketcher.Constraint("Coincident", 11, 2, 12, 1),
    Sketcher.Constraint("Coincident", 12, 2, 7, 1),
    Sketcher.Constraint("Equal", 6, 13),
    Sketcher.Constraint("PointOnObject", 13, 3, -2),
    Sketcher.Constraint("Parallel", 0, 3),
    Sketcher.Constraint("Parallel", 1, 4),
    Sketcher.Constraint("Parallel", 2, 5),
    Sketcher.Constraint("Parallel", 7, 10),
    Sketcher.Constraint("Parallel", 8, 11),
    Sketcher.Constraint("Parallel", 9, 12),
    Sketcher.Constraint("Horizontal", 6, 3, 13, 3),
    Sketcher.Constraint("Equal", 0, 1),
    Sketcher.Constraint("Equal", 1, 2),
    Sketcher.Constraint("Equal", 2, 3),
    Sketcher.Constraint("Equal", 7, 8),
    Sketcher.Constraint("Equal", 8, 9),
    Sketcher.Constraint("Equal", 9, 10),
    Sketcher.Constraint("Diameter", 6, Q("4 mm")),
    Sketcher.Constraint("DistanceX", -1, 1, 6, 3, Q("120 mm")),
    Sketcher.Constraint("DistanceY", -1, 1, 6, 3, Q("15 mm")),
    Sketcher.Constraint("DistanceX", 8, 2, 10, 2, Q("7 mm")),
    Sketcher.Constraint("DistanceY", 9, 2, 11, 2, Q("6.066198 mm")),
    Sketcher.Constraint("Distance", 0, Q("4.041452 mm")),
    Sketcher.Constraint("DistanceX", -1, 1, 0, 2, Q("119.985371 mm")),
    Sketcher.Constraint("DistanceX", -1, 1, 1, 2, Q("116.492708 mm")),
    Sketcher.Constraint("DistanceX", -1, 1, 3, 2, Q("120.014629 mm")),
    Sketcher.Constraint("DistanceX", 7, 2, -1, 1, Q("3.502321 mm")),
    Sketcher.Constraint("DistanceX", 8, 2, -1, 1, Q("3.497679 mm")),
    Sketcher.Constraint("DistanceY", -1, 1, 9, 2, Q("10.958548 mm")),
    Sketcher.Constraint("DistanceY", -1, 1, 12, 2, Q("19.041452 mm")),
    Sketcher.Constraint("DistanceX", 1, 2, 2, 2, Q("0.014629 mm")),
    Sketcher.Constraint("DistanceY", 7, 2, 0, 2, Q("2.02472 mm")),
])
sketch11.setExpression("Constraints[27]", "Params.sketch11_diameter")
pad3 = doc.addObject("PartDesign::Pad", "Pad002")
body.addObject(pad3)
pad3.Profile = sketch11
pad3.setExpression("Length", "Params.pad3_length")

sketch12 = doc.addObject("Sketcher::SketchObject", "Sketch011")
body.addObject(sketch12)
sketch12.AttachmentSupport = (doc.XZ_Plane, [""])
sketch12.MapMode = "FlatFace"
sketch12.addGeometry([
    Part.LineSegment(Vector(0, 19, 0), Vector(-3.5, 17, 0)),
    Part.LineSegment(Vector(-3.5, 17, 0), Vector(-3.5, 13, 0)),
    Part.LineSegment(Vector(-3.5, 13, 0), Vector(0, 11, 0)),
    Part.LineSegment(Vector(0, 11, 0), Vector(3.5, 13, 0)),
    Part.LineSegment(Vector(3.5, 13, 0), Vector(3.5, 17, 0)),
    Part.LineSegment(Vector(3.5, 17, 0), Vector(0, 19, 0)),
    Part.Circle(Vector(0, 15, 0), Vector(0, 0, 1), 2),
    Part.LineSegment(Vector(123.5, 17, 0), Vector(120, 19, 0)),
    Part.LineSegment(Vector(120, 19, 0), Vector(116.5, 17, 0)),
    Part.LineSegment(Vector(116.5, 17, 0), Vector(116.5, 13, 0)),
    Part.LineSegment(Vector(116.5, 13, 0), Vector(120, 11, 0)),
    Part.LineSegment(Vector(120, 11, 0), Vector(123.5, 13, 0)),
    Part.LineSegment(Vector(123.5, 13, 0), Vector(123.5, 17, 0)),
    Part.Circle(Vector(120, 15, 0), Vector(0, 0, 1), 2),
], False)
sketch12.addConstraint([
    Sketcher.Constraint("Coincident", 0, 2, 1, 1),
    Sketcher.Constraint("Coincident", 1, 2, 2, 1),
    Sketcher.Constraint("Coincident", 2, 2, 3, 1),
    Sketcher.Constraint("Coincident", 3, 2, 4, 1),
    Sketcher.Constraint("Coincident", 4, 2, 5, 1),
    Sketcher.Constraint("Coincident", 5, 2, 0, 1),
    Sketcher.Constraint("Coincident", 7, 2, 8, 1),
    Sketcher.Constraint("Coincident", 8, 2, 9, 1),
    Sketcher.Constraint("Coincident", 9, 2, 10, 1),
    Sketcher.Constraint("Coincident", 10, 2, 11, 1),
    Sketcher.Constraint("Coincident", 11, 2, 12, 1),
    Sketcher.Constraint("Coincident", 12, 2, 7, 1),
    Sketcher.Constraint("Equal", 6, 13),
    Sketcher.Constraint("PointOnObject", 6, 3, -2),
    Sketcher.Constraint("Parallel", 0, 3),
    Sketcher.Constraint("Parallel", 1, 4),
    Sketcher.Constraint("Parallel", 2, 5),
    Sketcher.Constraint("Parallel", 7, 10),
    Sketcher.Constraint("Parallel", 8, 11),
    Sketcher.Constraint("Parallel", 9, 12),
    Sketcher.Constraint("Horizontal", 6, 3, 13, 3),
    Sketcher.Constraint("Equal", 0, 1),
    Sketcher.Constraint("Equal", 1, 2),
    Sketcher.Constraint("Equal", 2, 3),
    Sketcher.Constraint("Equal", 7, 8),
    Sketcher.Constraint("Equal", 8, 9),
    Sketcher.Constraint("Equal", 9, 10),
    Sketcher.Constraint("Diameter", 6, Q("4 mm")),
    Sketcher.Constraint("DistanceY", -1, 1, 6, 3, Q("15 mm")),
    Sketcher.Constraint("DistanceX", -1, 1, 13, 3, Q("120 mm")),
    Sketcher.Constraint("DistanceX", 1, 2, 3, 2, Q("7 mm")),
    Sketcher.Constraint("DistanceY", 2, 2, 4, 2, Q("6.066198 mm")),
    Sketcher.Constraint("Distance", 7, Q("4.041452 mm")),
    Sketcher.Constraint("DistanceX", 0, 2, -1, 1, Q("3.502321 mm")),
    Sketcher.Constraint("DistanceX", 1, 2, -1, 1, Q("3.497679 mm")),
    Sketcher.Constraint("DistanceY", -1, 1, 2, 2, Q("10.958548 mm")),
    Sketcher.Constraint("DistanceY", -1, 1, 5, 2, Q("19.041452 mm")),
    Sketcher.Constraint("DistanceX", -1, 1, 7, 2, Q("119.985371 mm")),
    Sketcher.Constraint("DistanceX", -1, 1, 8, 2, Q("116.492708 mm")),
    Sketcher.Constraint("DistanceX", -1, 1, 10, 2, Q("120.014629 mm")),
    Sketcher.Constraint("DistanceY", 4, 2, 7, 2, Q("2.016679 mm")),
    Sketcher.Constraint("DistanceX", 8, 2, 9, 2, Q("0.014629 mm")),
])
sketch12.setExpression("Constraints[27]", "Params.sketch12_diameter")
pocket8 = doc.addObject("PartDesign::Pocket", "Pocket007")
body.addObject(pocket8)
pocket8.Profile = sketch12
pocket8.setExpression("Length", "Params.pocket8_length")
pocket8.Reversed = True

doc.recompute()
